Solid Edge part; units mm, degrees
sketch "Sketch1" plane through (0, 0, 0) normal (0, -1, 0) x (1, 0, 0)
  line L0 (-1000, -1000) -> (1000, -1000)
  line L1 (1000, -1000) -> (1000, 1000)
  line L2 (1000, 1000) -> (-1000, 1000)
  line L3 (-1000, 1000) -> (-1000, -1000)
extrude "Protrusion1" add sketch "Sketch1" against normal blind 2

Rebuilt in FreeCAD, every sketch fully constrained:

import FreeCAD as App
import Part
import Sketcher
from FreeCAD import Vector

doc = App.newDocument("Part")
body = doc.addObject("PartDesign::Body", "Body")

sketch1 = body.newObject("Sketcher::SketchObject", "Sketch")
sketch1.AttachmentSupport = (doc.getObject("XZ_Plane"), [""])
sketch1.MapMode = "FlatFace"
sketch1.addGeometry([
    Part.LineSegment(Vector(-1000, 1000, 0), Vector(-1000, -1000, 0)),
    Part.LineSegment(Vector(-1000, -1000, 0), Vector(1000, -1000, 0)),
    Part.LineSegment(Vector(1000, -1000, 0), Vector(1000, 1000, 0)),
    Part.LineSegment(Vector(1000, 1000, 0), Vector(-1000, 1000, 0)),
], False)
sketch1.addConstraint([
    Sketcher.Constraint("Coincident", 0, 2, 1, 1),
    Sketcher.Constraint("Coincident", 1, 2, 2, 1),
    Sketcher.Constraint("Coincident", 2, 2, 3, 1),
    Sketcher.Constraint("Coincident", 3, 2, 0, 1),
    Sketcher.Constraint("Vertical", 0),
    Sketcher.Constraint("Horizontal", 1),
    Sketcher.Constraint("Vertical", 2),
    Sketcher.Constraint("Horizontal", 3),
    Sketcher.Constraint("Symmetric", 0, 2, 2, 2, -1, 1),
    Sketcher.Constraint("Equal", 3, 0),
    Sketcher.Constraint("DistanceX", 1, 1, 1, 2, 2000.0),
])
pad1 = body.newObject("PartDesign::Pad", "Pad")
pad1.Profile = sketch1
pad1.Length = 2
pad1.Reversed = True

doc.recompute()
